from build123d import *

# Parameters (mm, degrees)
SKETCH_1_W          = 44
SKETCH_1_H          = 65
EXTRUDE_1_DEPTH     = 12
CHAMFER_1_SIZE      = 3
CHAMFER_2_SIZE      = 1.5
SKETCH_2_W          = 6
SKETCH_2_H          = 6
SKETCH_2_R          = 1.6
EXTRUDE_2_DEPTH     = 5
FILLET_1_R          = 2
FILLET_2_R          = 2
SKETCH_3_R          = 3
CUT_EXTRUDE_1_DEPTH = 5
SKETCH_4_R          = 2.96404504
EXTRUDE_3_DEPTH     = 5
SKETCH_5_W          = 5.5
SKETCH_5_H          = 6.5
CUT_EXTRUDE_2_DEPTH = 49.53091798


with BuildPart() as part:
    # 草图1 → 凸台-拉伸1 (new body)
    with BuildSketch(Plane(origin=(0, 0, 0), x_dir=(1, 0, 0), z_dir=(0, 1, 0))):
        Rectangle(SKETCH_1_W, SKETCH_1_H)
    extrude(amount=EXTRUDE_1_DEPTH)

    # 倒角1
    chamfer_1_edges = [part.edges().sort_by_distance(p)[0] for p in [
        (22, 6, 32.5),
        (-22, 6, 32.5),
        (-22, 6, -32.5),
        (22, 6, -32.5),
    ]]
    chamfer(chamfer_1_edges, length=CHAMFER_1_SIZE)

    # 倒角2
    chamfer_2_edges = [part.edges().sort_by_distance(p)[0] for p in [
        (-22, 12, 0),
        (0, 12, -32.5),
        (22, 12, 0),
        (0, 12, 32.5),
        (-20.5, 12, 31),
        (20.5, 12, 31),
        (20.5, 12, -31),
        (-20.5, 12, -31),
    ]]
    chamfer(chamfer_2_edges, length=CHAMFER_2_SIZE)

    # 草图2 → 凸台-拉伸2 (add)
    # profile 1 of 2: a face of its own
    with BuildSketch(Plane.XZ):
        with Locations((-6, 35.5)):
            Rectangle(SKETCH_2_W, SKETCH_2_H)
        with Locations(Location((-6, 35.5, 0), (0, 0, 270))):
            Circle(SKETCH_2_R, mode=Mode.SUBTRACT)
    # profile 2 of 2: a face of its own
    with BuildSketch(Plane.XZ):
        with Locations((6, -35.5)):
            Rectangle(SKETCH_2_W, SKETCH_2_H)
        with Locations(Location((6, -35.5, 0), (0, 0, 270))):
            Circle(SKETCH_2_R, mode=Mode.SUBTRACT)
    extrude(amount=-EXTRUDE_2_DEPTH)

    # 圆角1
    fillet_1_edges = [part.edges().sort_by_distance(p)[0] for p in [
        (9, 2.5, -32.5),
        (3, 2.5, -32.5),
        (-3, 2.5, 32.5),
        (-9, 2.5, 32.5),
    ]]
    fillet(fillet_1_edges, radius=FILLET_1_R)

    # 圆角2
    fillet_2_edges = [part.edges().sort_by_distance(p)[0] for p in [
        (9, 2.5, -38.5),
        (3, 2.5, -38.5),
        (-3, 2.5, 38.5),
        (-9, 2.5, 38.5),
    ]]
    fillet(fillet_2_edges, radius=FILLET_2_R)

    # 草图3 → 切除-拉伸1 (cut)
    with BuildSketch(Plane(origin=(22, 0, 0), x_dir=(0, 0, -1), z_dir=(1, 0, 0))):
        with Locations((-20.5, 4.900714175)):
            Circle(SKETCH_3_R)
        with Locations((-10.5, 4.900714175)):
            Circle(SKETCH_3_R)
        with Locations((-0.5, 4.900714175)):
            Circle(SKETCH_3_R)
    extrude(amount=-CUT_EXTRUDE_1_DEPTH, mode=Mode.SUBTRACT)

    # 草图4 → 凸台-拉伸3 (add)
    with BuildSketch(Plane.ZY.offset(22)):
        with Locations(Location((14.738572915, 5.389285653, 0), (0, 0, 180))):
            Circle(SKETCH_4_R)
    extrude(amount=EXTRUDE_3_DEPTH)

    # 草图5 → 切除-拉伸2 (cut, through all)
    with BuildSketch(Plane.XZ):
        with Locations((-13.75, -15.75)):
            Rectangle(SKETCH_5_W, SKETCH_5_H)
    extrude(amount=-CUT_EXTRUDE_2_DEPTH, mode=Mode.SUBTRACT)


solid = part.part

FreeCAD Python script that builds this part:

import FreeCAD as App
import Part
import Sketcher

V = App.Vector


def edges_at(feature, points):
    """Names of the edges that pass closest to the given points."""
    edges = feature.Shape.Edges
    near = lambda p: min(range(len(edges)), key=lambda i: edges[i].distToShape(Part.Vertex(*p))[0])
    return sorted({f"Edge{near(p) + 1}" for p in points})


def add_polygon(sketch, points):
    """Adds a closed chain of lines whose ends are joined by coincident constraints."""
    first, n = sketch.GeometryCount, len(points)
    for a, b in zip(points, points[1:] + points[:1]):
        sketch.addGeometry(Part.LineSegment(App.Vector(*a, 0), App.Vector(*b, 0)), False)
    for i in range(n):
        sketch.addConstraint(Sketcher.Constraint("Coincident", first + i, 2, first + (i + 1) % n, 1))

doc = App.newDocument("Part")
body = doc.addObject("PartDesign::Body", "Body")

# Sketch on XZ plane
sketch1 = body.newObject("Sketcher::SketchObject", "Sketch")
sketch1.AttachmentSupport = (doc.getObject("XZ_Plane"), [""])
sketch1.MapMode = "FlatFace"
add_polygon(sketch1, [(-22, -32), (-22, 32), (22, 32), (22, -32)])  # lines 0-3
sketch1.addConstraint(Sketcher.Constraint("Vertical", 0))
sketch1.addConstraint(Sketcher.Constraint("Horizontal", 1))
sketch1.addConstraint(Sketcher.Constraint("Vertical", 2))
sketch1.addConstraint(Sketcher.Constraint("Horizontal", 3))
sketch1.addConstraint(Sketcher.Constraint("Symmetric", 0, 2, 2, 2, -1, 1))
sketch1.addConstraint(Sketcher.Constraint("DistanceX", 1, 1, 1, 2, 44.0))
sketch1.addConstraint(Sketcher.Constraint("DistanceY", 0, 1, 0, 2, 65.0))
pad1 = body.newObject("PartDesign::Pad", "Pad")
pad1.Profile = sketch1
pad1.Length = 12
pad1.Reversed = True
doc.recompute()

chamfer = body.newObject("PartDesign::Chamfer", "Chamfer")
chamfer.Base = (pad1, edges_at(pad1, [
    (22, 6, 32.5),
    (-22, 6, 32.5),
    (-22, 6, -32.5),
    (22, 6, -32.5),
]))
chamfer.Size = 3
doc.recompute()

chamfer2 = body.newObject("PartDesign::Chamfer", "Chamfer001")
chamfer2.Base = (chamfer, edges_at(chamfer, [
    (-22, 12, 0),
    (0, 12, -32.5),
    (22, 12, 0),
    (0, 12, 32.5),
    (-20.5, 12, 31),
    (20.5, 12, 31),
    (20.5, 12, -31),
    (-20.5, 12, -31),
]))
chamfer2.Size = 1.5

# Sketch on XZ plane
sketch2 = body.newObject("Sketcher::SketchObject", "Sketch001")
sketch2.AttachmentSupport = (doc.getObject("XZ_Plane"), [""])
sketch2.MapMode = "FlatFace"
add_polygon(sketch2, [(-9, 38.5), (-9, 32.5), (-3, 32.5), (-3, 38.5)])  # lines 0-3
sketch2.addGeometry(Part.Circle(V(-6, 35.5, 0), V(0, 0, 1), 1.6), False)  # 4
add_polygon(sketch2, [(3, -32.5), (3, -38.5), (9, -38.5), (9, -32.5)])  # lines 5-8
sketch2.addGeometry(Part.Circle(V(6, -35.5, 0), V(0, 0, 1), 1.6), False)  # 9
sketch2.addConstraint(Sketcher.Constraint("Vertical", 0))
sketch2.addConstraint(Sketcher.Constraint("Horizontal", 1))
sketch2.addConstraint(Sketcher.Constraint("Vertical", 2))
sketch2.addConstraint(Sketcher.Constraint("Horizontal", 3))
sketch2.addConstraint(Sketcher.Constraint("Vertical", 5))
sketch2.addConstraint(Sketcher.Constraint("Horizontal", 6))
sketch2.addConstraint(Sketcher.Constraint("Vertical", 7))
sketch2.addConstraint(Sketcher.Constraint("Horizontal", 8))
sketch2.addConstraint(Sketcher.Constraint("Equal", 4, 9))
sketch2.addConstraint(Sketcher.Constraint("Symmetric", 4, 3, 9, 3, -1, 1))
sketch2.addConstraint(Sketcher.Constraint("Symmetric", 2, 2, 5, 2, -1, 1))
sketch2.addConstraint(Sketcher.Constraint("Symmetric", 0, 2, 7, 2, -1, 1))
sketch2.addConstraint(Sketcher.Constraint("Equal", 8, 0))
sketch2.addConstraint(Sketcher.Constraint("Diameter", 4, 3.2))
sketch2.addConstraint(Sketcher.Constraint("DistanceX", 1, 1, 1, 2, 6.0))
sketch2.addConstraint(Sketcher.Constraint("DistanceX", 4, 3, -1, 1, 6.0))
sketch2.addConstraint(Sketcher.Constraint("DistanceX", 0, 2, -1, 1, 9.0))
sketch2.addConstraint(Sketcher.Constraint("DistanceY", 9, 3, 4, 3, 71.0))
sketch2.addConstraint(Sketcher.Constraint("DistanceY", 0, 2, 4, 3, 3.0))
pad2 = body.newObject("PartDesign::Pad", "Pad001")
pad2.Profile = sketch2
pad2.Length = 5
pad2.Reversed = True
doc.recompute()

fillet = body.newObject("PartDesign::Fillet", "Fillet")
fillet.Base = (pad2, edges_at(pad2, [
    (9, 2.5, -32.5),
    (3, 2.5, -32.5),
    (-3, 2.5, 32.5),
    (-9, 2.5, 32.5),
]))
fillet.Radius = 2
doc.recompute()

fillet2 = body.newObject("PartDesign::Fillet", "Fillet001")
fillet2.Base = (fillet, edges_at(fillet, [
    (9, 2.5, -38.5),
    (3, 2.5, -38.5),
    (-3, 2.5, 38.5),
    (-9, 2.5, 38.5),
]))
fillet2.Radius = 2

# Sketch on YZ plane
sketch3 = body.newObject("Sketcher::SketchObject", "Sketch002")
sketch3.AttachmentSupport = (doc.getObject("YZ_Plane"), [""])
sketch3.MapMode = "FlatFace"
sketch3.AttachmentOffset = App.Placement(V(0, 0, 22), App.Rotation())
sketch3.addGeometry(Part.Circle(V(4.9, 20.5, 0), V(0, 0, 1), 3), False)
sketch3.addGeometry(Part.Circle(V(4.9, 10.5, 0), V(0, 0, 1), 3), False)
sketch3.addGeometry(Part.Circle(V(4.9, 0.5, 0), V(0, 0, 1), 3), False)
sketch3.addConstraint(Sketcher.Constraint("Equal", 0, 1))
sketch3.addConstraint(Sketcher.Constraint("Equal", 1, 2))
sketch3.addConstraint(Sketcher.Constraint("Vertical", 0, 3, 1, 3))
sketch3.addConstraint(Sketcher.Constraint("Vertical", 1, 3, 2, 3))
sketch3.addConstraint(Sketcher.Constraint("Diameter", 0, 6.0))
sketch3.addConstraint(Sketcher.Constraint("DistanceY", 1, 3, 0, 3, 10.0))
sketch3.addConstraint(Sketcher.Constraint("DistanceY", 2, 3, 1, 3, 10.0))
sketch3.addConstraint(Sketcher.Constraint("DistanceY", -1, 1, 0, 3, 20.5))
sketch3.addConstraint(Sketcher.Constraint("DistanceX", -1, 1, 0, 3, 4.900714))
pocket1 = body.newObject("PartDesign::Pocket", "Pocket")
pocket1.Profile = sketch3
pocket1.Length = 5

# Sketch on YZ plane
sketch4 = body.newObject("Sketcher::SketchObject", "Sketch003")
sketch4.AttachmentSupport = (doc.getObject("YZ_Plane"), [""])
sketch4.MapMode = "FlatFace"
sketch4.AttachmentOffset = App.Placement(V(0, 0, -22), App.Rotation())
sketch4.addGeometry(Part.Circle(V(5.4, 14.7, 0), V(0, 0, 1), 3), False)
sketch4.addConstraint(Sketcher.Constraint("Diameter", 0, 5.92809))
sketch4.addConstraint(Sketcher.Constraint("DistanceX", -1, 1, 0, 3, 5.389286))
sketch4.addConstraint(Sketcher.Constraint("DistanceY", -1, 1, 0, 3, 14.738573))
pad3 = body.newObject("PartDesign::Pad", "Pad002")
pad3.Profile = sketch4
pad3.Length = 5
pad3.Reversed = True

# Sketch on XZ plane
sketch5 = body.newObject("Sketcher::SketchObject", "Sketch004")
sketch5.AttachmentSupport = (doc.getObject("XZ_Plane"), [""])
sketch5.MapMode = "FlatFace"
add_polygon(sketch5, [(-16, -12), (-16, -19), (-11, -19), (-11, -12)])  # lines 0-3
sketch5.addConstraint(Sketcher.Constraint("Vertical", 0))
sketch5.addConstraint(Sketcher.Constraint("Horizontal", 1))
sketch5.addConstraint(Sketcher.Constraint("Vertical", 2))
sketch5.addConstraint(Sketcher.Constraint("Horizontal", 3))
sketch5.addConstraint(Sketcher.Constraint("DistanceX", 1, 1, 1, 2, 5.5))
sketch5.addConstraint(Sketcher.Constraint("DistanceY", 0, 2, 0, 1, 6.5))
sketch5.addConstraint(Sketcher.Constraint("DistanceY", 0, 2, -1, 1, 19.0))
sketch5.addConstraint(Sketcher.Constraint("DistanceX", 1, 2, -1, 1, 11.0))
pocket2 = body.newObject("PartDesign::Pocket", "Pocket001")
pocket2.Profile = sketch5
pocket2.Type = "ThroughAll"

doc.recompute()
